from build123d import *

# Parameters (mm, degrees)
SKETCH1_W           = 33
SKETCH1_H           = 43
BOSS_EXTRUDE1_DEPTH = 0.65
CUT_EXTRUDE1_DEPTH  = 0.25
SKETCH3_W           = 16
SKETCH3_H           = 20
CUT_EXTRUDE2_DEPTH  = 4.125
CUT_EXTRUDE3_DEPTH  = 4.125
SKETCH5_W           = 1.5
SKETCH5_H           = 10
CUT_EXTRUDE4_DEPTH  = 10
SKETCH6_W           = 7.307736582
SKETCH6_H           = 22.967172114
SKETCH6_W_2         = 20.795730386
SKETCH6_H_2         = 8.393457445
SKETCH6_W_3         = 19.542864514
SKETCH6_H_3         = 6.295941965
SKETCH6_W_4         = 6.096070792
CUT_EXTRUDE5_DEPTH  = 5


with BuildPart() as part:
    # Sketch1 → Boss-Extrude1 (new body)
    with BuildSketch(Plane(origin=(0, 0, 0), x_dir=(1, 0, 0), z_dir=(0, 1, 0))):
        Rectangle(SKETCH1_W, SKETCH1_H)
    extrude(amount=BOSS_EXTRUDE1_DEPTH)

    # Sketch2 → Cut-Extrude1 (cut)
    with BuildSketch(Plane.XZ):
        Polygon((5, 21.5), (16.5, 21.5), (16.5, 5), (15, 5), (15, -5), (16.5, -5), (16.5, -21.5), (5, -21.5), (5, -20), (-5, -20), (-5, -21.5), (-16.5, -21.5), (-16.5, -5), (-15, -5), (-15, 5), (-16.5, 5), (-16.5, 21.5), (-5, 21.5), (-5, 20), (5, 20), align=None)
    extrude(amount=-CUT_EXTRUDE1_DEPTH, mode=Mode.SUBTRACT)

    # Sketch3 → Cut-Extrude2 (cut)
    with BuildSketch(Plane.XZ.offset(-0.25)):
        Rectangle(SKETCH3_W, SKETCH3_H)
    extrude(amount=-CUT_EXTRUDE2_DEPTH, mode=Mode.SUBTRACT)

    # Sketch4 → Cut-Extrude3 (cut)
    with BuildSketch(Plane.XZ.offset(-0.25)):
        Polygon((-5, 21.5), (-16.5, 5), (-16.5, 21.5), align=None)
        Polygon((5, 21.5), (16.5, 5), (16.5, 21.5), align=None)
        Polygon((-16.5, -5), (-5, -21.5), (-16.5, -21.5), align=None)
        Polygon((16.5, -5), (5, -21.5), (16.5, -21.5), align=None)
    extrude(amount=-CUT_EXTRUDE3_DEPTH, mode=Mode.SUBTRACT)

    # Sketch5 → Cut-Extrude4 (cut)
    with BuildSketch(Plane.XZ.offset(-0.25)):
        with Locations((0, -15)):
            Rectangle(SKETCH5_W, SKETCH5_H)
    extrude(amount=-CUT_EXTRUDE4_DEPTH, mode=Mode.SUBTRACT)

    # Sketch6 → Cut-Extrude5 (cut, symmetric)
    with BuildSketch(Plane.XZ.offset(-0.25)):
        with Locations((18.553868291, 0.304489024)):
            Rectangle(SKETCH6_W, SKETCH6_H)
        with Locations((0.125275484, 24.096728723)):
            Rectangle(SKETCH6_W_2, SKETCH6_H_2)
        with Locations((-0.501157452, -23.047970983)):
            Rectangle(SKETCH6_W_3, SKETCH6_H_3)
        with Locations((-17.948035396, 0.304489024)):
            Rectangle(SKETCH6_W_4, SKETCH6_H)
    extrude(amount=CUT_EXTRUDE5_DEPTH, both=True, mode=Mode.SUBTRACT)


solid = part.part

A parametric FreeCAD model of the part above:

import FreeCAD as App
import Part
import Sketcher
from FreeCAD import Vector

doc = App.newDocument("Part")
body = doc.addObject("PartDesign::Body", "Body")

# Sketch on XZ plane
sketch1 = body.newObject("Sketcher::SketchObject", "Sketch")
sketch1.AttachmentSupport = (doc.getObject("XZ_Plane"), [""])
sketch1.MapMode = "FlatFace"
sketch1.addGeometry(Part.LineSegment(Vector(-16, -22, 0), Vector(-16, 22, 0)), False)
sketch1.addGeometry(Part.LineSegment(Vector(-16, 22, 0), Vector(16, 22, 0)), False)
sketch1.addGeometry(Part.LineSegment(Vector(16, 22, 0), Vector(16, -22, 0)), False)
sketch1.addGeometry(Part.LineSegment(Vector(16, -22, 0), Vector(-16, -22, 0)), False)
sketch1.addConstraint(Sketcher.Constraint("Coincident", 0, 2, 1, 1))
sketch1.addConstraint(Sketcher.Constraint("Coincident", 1, 2, 2, 1))
sketch1.addConstraint(Sketcher.Constraint("Coincident", 2, 2, 3, 1))
sketch1.addConstraint(Sketcher.Constraint("Coincident", 3, 2, 0, 1))
sketch1.addConstraint(Sketcher.Constraint("Vertical", 0))
sketch1.addConstraint(Sketcher.Constraint("Horizontal", 1))
sketch1.addConstraint(Sketcher.Constraint("Vertical", 2))
sketch1.addConstraint(Sketcher.Constraint("Horizontal", 3))
sketch1.addConstraint(Sketcher.Constraint("Symmetric", 0, 2, 2, 2, -1, 1))
sketch1.addConstraint(Sketcher.Constraint("DistanceX", 1, 1, 1, 2, 33.0))
sketch1.addConstraint(Sketcher.Constraint("DistanceY", 0, 1, 0, 2, 43.0))
pad1 = body.newObject("PartDesign::Pad", "Pad")
pad1.Profile = sketch1
pad1.Length = 0.65
pad1.Reversed = True

# Sketch on XZ plane
sketch2 = body.newObject("Sketcher::SketchObject", "Sketch001")
sketch2.AttachmentSupport = (doc.getObject("XZ_Plane"), [""])
sketch2.MapMode = "FlatFace"
sketch2.addGeometry(Part.LineSegment(Vector(16.5, 21.5, 0), Vector(5, 21.5, 0)), False)
sketch2.addGeometry(Part.LineSegment(Vector(5, 21.5, 0), Vector(5, 20, 0)), False)
sketch2.addGeometry(Part.LineSegment(Vector(5, 20, 0), Vector(-5, 20, 0)), False)
sketch2.addGeometry(Part.LineSegment(Vector(-5, 20, 0), Vector(-5, 21.5, 0)), False)
sketch2.addGeometry(Part.LineSegment(Vector(-5, 21.5, 0), Vector(-16.5, 21.5, 0)), False)
sketch2.addGeometry(Part.LineSegment(Vector(-16.5, 21.5, 0), Vector(-16.5, 5, 0)), False)
sketch2.addGeometry(Part.LineSegment(Vector(-16.5, 5, 0), Vector(-15, 5, 0)), False)
sketch2.addGeometry(Part.LineSegment(Vector(-15, 5, 0), Vector(-15, -5, 0)), False)
sketch2.addGeometry(Part.LineSegment(Vector(-15, -5, 0), Vector(-16.5, -5, 0)), False)
sketch2.addGeometry(Part.LineSegment(Vector(-16.5, -5, 0), Vector(-16.5, -21.5, 0)), False)
sketch2.addGeometry(Part.LineSegment(Vector(-16.5, -21.5, 0), Vector(-5, -21.5, 0)), False)
sketch2.addGeometry(Part.LineSegment(Vector(-5, -21.5, 0), Vector(-5, -20, 0)), False)
sketch2.addGeometry(Part.LineSegment(Vector(-5, -20, 0), Vector(5, -20, 0)), False)
sketch2.addGeometry(Part.LineSegment(Vector(5, -20, 0), Vector(5, -21.5, 0)), False)
sketch2.addGeometry(Part.LineSegment(Vector(5, -21.5, 0), Vector(16.5, -21.5, 0)), False)
sketch2.addGeometry(Part.LineSegment(Vector(16.5, -21.5, 0), Vector(16.5, -5, 0)), False)
sketch2.addGeometry(Part.LineSegment(Vector(16.5, -5, 0), Vector(15, -5, 0)), False)
sketch2.addGeometry(Part.LineSegment(Vector(15, -5, 0), Vector(15, 5, 0)), False)
sketch2.addGeometry(Part.LineSegment(Vector(15, 5, 0), Vector(16.5, 5, 0)), False)
sketch2.addGeometry(Part.LineSegment(Vector(16.5, 5, 0), Vector(16.5, 21.5, 0)), False)
sketch2.addConstraint(Sketcher.Constraint("Coincident", 0, 2, 1, 1))
sketch2.addConstraint(Sketcher.Constraint("Coincident", 1, 2, 2, 1))
sketch2.addConstraint(Sketcher.Constraint("Coincident", 2, 2, 3, 1))
sketch2.addConstraint(Sketcher.Constraint("Coincident", 3, 2, 4, 1))
sketch2.addConstraint(Sketcher.Constraint("Coincident", 4, 2, 5, 1))
sketch2.addConstraint(Sketcher.Constraint("Coincident", 5, 2, 6, 1))
sketch2.addConstraint(Sketcher.Constraint("Coincident", 6, 2, 7, 1))
sketch2.addConstraint(Sketcher.Constraint("Coincident", 7, 2, 8, 1))
sketch2.addConstraint(Sketcher.Constraint("Coincident", 8, 2, 9, 1))
sketch2.addConstraint(Sketcher.Constraint("Coincident", 9, 2, 10, 1))
sketch2.addConstraint(Sketcher.Constraint("Coincident", 10, 2, 11, 1))
sketch2.addConstraint(Sketcher.Constraint("Coincident", 11, 2, 12, 1))
sketch2.addConstraint(Sketcher.Constraint("Coincident", 12, 2, 13, 1))
sketch2.addConstraint(Sketcher.Constraint("Coincident", 13, 2, 14, 1))
sketch2.addConstraint(Sketcher.Constraint("Coincident", 14, 2, 15, 1))
sketch2.addConstraint(Sketcher.Constraint("Coincident", 15, 2, 16, 1))
sketch2.addConstraint(Sketcher.Constraint("Coincident", 16, 2, 17, 1))
sketch2.addConstraint(Sketcher.Constraint("Coincident", 17, 2, 18, 1))
sketch2.addConstraint(Sketcher.Constraint("Coincident", 18, 2, 19, 1))
sketch2.addConstraint(Sketcher.Constraint("Coincident", 19, 2, 0, 1))
sketch2.addConstraint(Sketcher.Constraint("Horizontal", 0))
sketch2.addConstraint(Sketcher.Constraint("Vertical", 1))
sketch2.addConstraint(Sketcher.Constraint("Horizontal", 2))
sketch2.addConstraint(Sketcher.Constraint("Vertical", 3))
sketch2.addConstraint(Sketcher.Constraint("Horizontal", 4))
sketch2.addConstraint(Sketcher.Constraint("Vertical", 5))
sketch2.addConstraint(Sketcher.Constraint("Horizontal", 6))
sketch2.addConstraint(Sketcher.Constraint("Vertical", 7))
sketch2.addConstraint(Sketcher.Constraint("Horizontal", 8))
sketch2.addConstraint(Sketcher.Constraint("Vertical", 9))
sketch2.addConstraint(Sketcher.Constraint("Horizontal", 10))
sketch2.addConstraint(Sketcher.Constraint("Vertical", 11))
sketch2.addConstraint(Sketcher.Constraint("Horizontal", 12))
sketch2.addConstraint(Sketcher.Constraint("Vertical", 13))
sketch2.addConstraint(Sketcher.Constraint("Horizontal", 14))
sketch2.addConstraint(Sketcher.Constraint("Vertical", 15))
sketch2.addConstraint(Sketcher.Constraint("Horizontal", 16))
sketch2.addConstraint(Sketcher.Constraint("Vertical", 17))
sketch2.addConstraint(Sketcher.Constraint("Horizontal", 18))
sketch2.addConstraint(Sketcher.Constraint("Vertical", 19))
sketch2.addConstraint(Sketcher.Constraint("Symmetric", 0, 2, 10, 2, -1, 1))
sketch2.addConstraint(Sketcher.Constraint("Symmetric", 2, 2, 12, 2, -1, 1))
sketch2.addConstraint(Sketcher.Constraint("Symmetric", 4, 2, 14, 2, -1, 1))
sketch2.addConstraint(Sketcher.Constraint("Symmetric", 6, 2, 16, 2, -1, 1))
sketch2.addConstraint(Sketcher.Constraint("Symmetric", 8, 2, 18, 2, -1, 1))
sketch2.addConstraint(Sketcher.Constraint("Symmetric", 0, 2, 3, 2, -2))
sketch2.addConstraint(Sketcher.Constraint("Symmetric", 8, 2, 15, 2, -2))
sketch2.addConstraint(Sketcher.Constraint("Equal", 18, 1))
sketch2.addConstraint(Sketcher.Constraint("Equal", 12, 7))
sketch2.addConstraint(Sketcher.Constraint("DistanceX", 2, 2, 2, 1, 10.0))
sketch2.addConstraint(Sketcher.Constraint("DistanceX", 0, 2, 0, 1, 11.5))
sketch2.addConstraint(Sketcher.Constraint("DistanceX", 6, 1, 6, 2, 1.5))
sketch2.addConstraint(Sketcher.Constraint("DistanceY", 5, 2, 5, 1, 16.5))
pocket1 = body.newObject("PartDesign::Pocket", "Pocket")
pocket1.Profile = sketch2
pocket1.Length = 0.25

# Sketch on XZ plane
sketch3 = body.newObject("Sketcher::SketchObject", "Sketch002")
sketch3.AttachmentSupport = (doc.getObject("XZ_Plane"), [""])
sketch3.MapMode = "FlatFace"
sketch3.AttachmentOffset = App.Placement(Vector(0, 0, -0.25), App.Rotation())
sketch3.addGeometry(Part.LineSegment(Vector(-8, 10, 0), Vector(-8, -10, 0)), False)
sketch3.addGeometry(Part.LineSegment(Vector(-8, -10, 0), Vector(8, -10, 0)), False)
sketch3.addGeometry(Part.LineSegment(Vector(8, -10, 0), Vector(8, 10, 0)), False)
sketch3.addGeometry(Part.LineSegment(Vector(8, 10, 0), Vector(-8, 10, 0)), False)
sketch3.addConstraint(Sketcher.Constraint("Coincident", 0, 2, 1, 1))
sketch3.addConstraint(Sketcher.Constraint("Coincident", 1, 2, 2, 1))
sketch3.addConstraint(Sketcher.Constraint("Coincident", 2, 2, 3, 1))
sketch3.addConstraint(Sketcher.Constraint("Coincident", 3, 2, 0, 1))
sketch3.addConstraint(Sketcher.Constraint("Vertical", 0))
sketch3.addConstraint(Sketcher.Constraint("Horizontal", 1))
sketch3.addConstraint(Sketcher.Constraint("Vertical", 2))
sketch3.addConstraint(Sketcher.Constraint("Horizontal", 3))
sketch3.addConstraint(Sketcher.Constraint("Symmetric", 0, 2, 2, 2, -1, 1))
sketch3.addConstraint(Sketcher.Constraint("DistanceX", 1, 1, 1, 2, 16.0))
sketch3.addConstraint(Sketcher.Constraint("DistanceY", 0, 2, 0, 1, 20.0))
pocket2 = body.newObject("PartDesign::Pocket", "Pocket001")
pocket2.Profile = sketch3
pocket2.Length = 4.125

# Sketch on XZ plane
sketch4 = body.newObject("Sketcher::SketchObject", "Sketch003")
sketch4.AttachmentSupport = (doc.getObject("XZ_Plane"), [""])
sketch4.MapMode = "FlatFace"
sketch4.AttachmentOffset = App.Placement(Vector(0, 0, -0.25), App.Rotation())
sketch4.addGeometry(Part.LineSegment(Vector(-16, 5, 0), Vector(-5, 22, 0)), False)
sketch4.addGeometry(Part.LineSegment(Vector(-5, 22, 0), Vector(-16, 22, 0)), False)
sketch4.addGeometry(Part.LineSegment(Vector(-16, 22, 0), Vector(-16, 5, 0)), False)
sketch4.addGeometry(Part.LineSegment(Vector(5, 22, 0), Vector(16, 5, 0)), False)
sketch4.addGeometry(Part.LineSegment(Vector(16, 5, 0), Vector(16, 22, 0)), False)
sketch4.addGeometry(Part.LineSegment(Vector(16, 22, 0), Vector(5, 22, 0)), False)
sketch4.addGeometry(Part.LineSegment(Vector(-5, -22, 0), Vector(-16, -5, 0)), False)
sketch4.addGeometry(Part.LineSegment(Vector(-16, -5, 0), Vector(-16, -22, 0)), False)
sketch4.addGeometry(Part.LineSegment(Vector(-16, -22, 0), Vector(-5, -22, 0)), False)
sketch4.addGeometry(Part.LineSegment(Vector(16, -5, 0), Vector(5, -22, 0)), False)
sketch4.addGeometry(Part.LineSegment(Vector(5, -22, 0), Vector(16, -22, 0)), False)
sketch4.addGeometry(Part.LineSegment(Vector(16, -22, 0), Vector(16, -5, 0)), False)
sketch4.addConstraint(Sketcher.Constraint("Coincident", 0, 2, 1, 1))
sketch4.addConstraint(Sketcher.Constraint("Coincident", 1, 2, 2, 1))
sketch4.addConstraint(Sketcher.Constraint("Coincident", 2, 2, 0, 1))
sketch4.addConstraint(Sketcher.Constraint("Coincident", 3, 2, 4, 1))
sketch4.addConstraint(Sketcher.Constraint("Coincident", 4, 2, 5, 1))
sketch4.addConstraint(Sketcher.Constraint("Coincident", 5, 2, 3, 1))
sketch4.addConstraint(Sketcher.Constraint("Coincident", 6, 2, 7, 1))
sketch4.addConstraint(Sketcher.Constraint("Coincident", 7, 2, 8, 1))
sketch4.addConstraint(Sketcher.Constraint("Coincident", 8, 2, 6, 1))
sketch4.addConstraint(Sketcher.Constraint("Coincident", 9, 2, 10, 1))
sketch4.addConstraint(Sketcher.Constraint("Coincident", 10, 2, 11, 1))
sketch4.addConstraint(Sketcher.Constraint("Coincident", 11, 2, 9, 1))
sketch4.addConstraint(Sketcher.Constraint("Horizontal", 1))
sketch4.addConstraint(Sketcher.Constraint("Vertical", 2))
sketch4.addConstraint(Sketcher.Constraint("Vertical", 4))
sketch4.addConstraint(Sketcher.Constraint("Horizontal", 5))
sketch4.addConstraint(Sketcher.Constraint("Vertical", 7))
sketch4.addConstraint(Sketcher.Constraint("Horizontal", 8))
sketch4.addConstraint(Sketcher.Constraint("Horizontal", 10))
sketch4.addConstraint(Sketcher.Constraint("Vertical", 11))
sketch4.addConstraint(Sketcher.Constraint("Symmetric", 3, 2, 6, 2, -1, 1))
sketch4.addConstraint(Sketcher.Constraint("Symmetric", 5, 2, 8, 2, -1, 1))
sketch4.addConstraint(Sketcher.Constraint("Symmetric", 0, 2, 9, 2, -1, 1))
sketch4.addConstraint(Sketcher.Constraint("Symmetric", 2, 2, 11, 2, -1, 1))
sketch4.addConstraint(Sketcher.Constraint("Symmetric", 2, 2, 3, 2, -2))
sketch4.addConstraint(Sketcher.Constraint("Symmetric", 0, 2, 5, 2, -2))
sketch4.addConstraint(Sketcher.Constraint("DistanceX", 1, 2, 1, 1, 11.5))
sketch4.addConstraint(Sketcher.Constraint("DistanceY", 2, 2, 2, 1, 16.5))
sketch4.addConstraint(Sketcher.Constraint("DistanceX", 0, 2, -1, 1, 5.0))
sketch4.addConstraint(Sketcher.Constraint("DistanceY", -1, 1, 2, 2, 5.0))
pocket3 = body.newObject("PartDesign::Pocket", "Pocket002")
pocket3.Profile = sketch4
pocket3.Length = 4.125

# Sketch on XZ plane
sketch5 = body.newObject("Sketcher::SketchObject", "Sketch004")
sketch5.AttachmentSupport = (doc.getObject("XZ_Plane"), [""])
sketch5.MapMode = "FlatFace"
sketch5.AttachmentOffset = App.Placement(Vector(0, 0, -0.25), App.Rotation())
sketch5.addGeometry(Part.LineSegment(Vector(-0.8, -10, 0), Vector(-0.8, -20, 0)), False)
sketch5.addGeometry(Part.LineSegment(Vector(-0.8, -20, 0), Vector(0.8, -20, 0)), False)
sketch5.addGeometry(Part.LineSegment(Vector(0.8, -20, 0), Vector(0.8, -10, 0)), False)
sketch5.addGeometry(Part.LineSegment(Vector(0.8, -10, 0), Vector(-0.8, -10, 0)), False)
sketch5.addConstraint(Sketcher.Constraint("Coincident", 0, 2, 1, 1))
sketch5.addConstraint(Sketcher.Constraint("Coincident", 1, 2, 2, 1))
sketch5.addConstraint(Sketcher.Constraint("Coincident", 2, 2, 3, 1))
sketch5.addConstraint(Sketcher.Constraint("Coincident", 3, 2, 0, 1))
sketch5.addConstraint(Sketcher.Constraint("Vertical", 0))
sketch5.addConstraint(Sketcher.Constraint("Horizontal", 1))
sketch5.addConstraint(Sketcher.Constraint("Vertical", 2))
sketch5.addConstraint(Sketcher.Constraint("Horizontal", 3))
sketch5.addConstraint(Sketcher.Constraint("DistanceY", 0, 2, 0, 1, 10.0))
sketch5.addConstraint(Sketcher.Constraint("DistanceX", 1, 1, 1, 2, 1.5))
sketch5.addConstraint(Sketcher.Constraint("DistanceY", 0, 2, -1, 1, 20.0))
sketch5.addConstraint(Sketcher.Constraint("DistanceX", 0, 2, -1, 1, 0.75))
pocket4 = body.newObject("PartDesign::Pocket", "Pocket003")
pocket4.Profile = sketch5
pocket4.Length = 10

# Sketch on XZ plane
sketch6 = body.newObject("Sketcher::SketchObject", "Sketch005")
sketch6.AttachmentSupport = (doc.getObject("XZ_Plane"), [""])
sketch6.MapMode = "FlatFace"
sketch6.AttachmentOffset = App.Placement(Vector(0, 0, -0.25), App.Rotation())
sketch6.addGeometry(Part.LineSegment(Vector(15, 12, 0), Vector(15, -11, 0)), False)
sketch6.addGeometry(Part.LineSegment(Vector(15, -11, 0), Vector(22, -11, 0)), False)
sketch6.addGeometry(Part.LineSegment(Vector(22, -11, 0), Vector(22, 12, 0)), False)
sketch6.addGeometry(Part.LineSegment(Vector(22, 12, 0), Vector(15, 12, 0)), False)
sketch6.addGeometry(Part.LineSegment(Vector(-10, 28, 0), Vector(-10, 20, 0)), False)
sketch6.addGeometry(Part.LineSegment(Vector(-10, 20, 0), Vector(11, 20, 0)), False)
sketch6.addGeometry(Part.LineSegment(Vector(11, 20, 0), Vector(11, 28, 0)), False)
sketch6.addGeometry(Part.LineSegment(Vector(11, 28, 0), Vector(-10, 28, 0)), False)
sketch6.addGeometry(Part.LineSegment(Vector(-10, -20, 0), Vector(-10, -26, 0)), False)
sketch6.addGeometry(Part.LineSegment(Vector(-10, -26, 0), Vector(9, -26, 0)), False)
sketch6.addGeometry(Part.LineSegment(Vector(9, -26, 0), Vector(9, -20, 0)), False)
sketch6.addGeometry(Part.LineSegment(Vector(9, -20, 0), Vector(-10, -20, 0)), False)
sketch6.addGeometry(Part.LineSegment(Vector(-21, 12, 0), Vector(-21, -11, 0)), False)
sketch6.addGeometry(Part.LineSegment(Vector(-21, -11, 0), Vector(-15, -11, 0)), False)
sketch6.addGeometry(Part.LineSegment(Vector(-15, -11, 0), Vector(-15, 12, 0)), False)
sketch6.addGeometry(Part.LineSegment(Vector(-15, 12, 0), Vector(-21, 12, 0)), False)
sketch6.addConstraint(Sketcher.Constraint("Coincident", 0, 2, 1, 1))
sketch6.addConstraint(Sketcher.Constraint("Coincident", 1, 2, 2, 1))
sketch6.addConstraint(Sketcher.Constraint("Coincident", 2, 2, 3, 1))
sketch6.addConstraint(Sketcher.Constraint("Coincident", 3, 2, 0, 1))
sketch6.addConstraint(Sketcher.Constraint("Coincident", 4, 2, 5, 1))
sketch6.addConstraint(Sketcher.Constraint("Coincident", 5, 2, 6, 1))
sketch6.addConstraint(Sketcher.Constraint("Coincident", 6, 2, 7, 1))
sketch6.addConstraint(Sketcher.Constraint("Coincident", 7, 2, 4, 1))
sketch6.addConstraint(Sketcher.Constraint("Coincident", 8, 2, 9, 1))
sketch6.addConstraint(Sketcher.Constraint("Coincident", 9, 2, 10, 1))
sketch6.addConstraint(Sketcher.Constraint("Coincident", 10, 2, 11, 1))
sketch6.addConstraint(Sketcher.Constraint("Coincident", 11, 2, 8, 1))
sketch6.addConstraint(Sketcher.Constraint("Coincident", 12, 2, 13, 1))
sketch6.addConstraint(Sketcher.Constraint("Coincident", 13, 2, 14, 1))
sketch6.addConstraint(Sketcher.Constraint("Coincident", 14, 2, 15, 1))
sketch6.addConstraint(Sketcher.Constraint("Coincident", 15, 2, 12, 1))
sketch6.addConstraint(Sketcher.Constraint("Vertical", 0))
sketch6.addConstraint(Sketcher.Constraint("Horizontal", 1))
sketch6.addConstraint(Sketcher.Constraint("Vertical", 2))
sketch6.addConstraint(Sketcher.Constraint("Horizontal", 3))
sketch6.addConstraint(Sketcher.Constraint("Vertical", 4))
sketch6.addConstraint(Sketcher.Constraint("Horizontal", 5))
sketch6.addConstraint(Sketcher.Constraint("Vertical", 6))
sketch6.addConstraint(Sketcher.Constraint("Horizontal", 7))
sketch6.addConstraint(Sketcher.Constraint("Vertical", 8))
sketch6.addConstraint(Sketcher.Constraint("Horizontal", 9))
sketch6.addConstraint(Sketcher.Constraint("Vertical", 10))
sketch6.addConstraint(Sketcher.Constraint("Horizontal", 11))
sketch6.addConstraint(Sketcher.Constraint("Vertical", 12))
sketch6.addConstraint(Sketcher.Constraint("Horizontal", 13))
sketch6.addConstraint(Sketcher.Constraint("Vertical", 14))
sketch6.addConstraint(Sketcher.Constraint("Horizontal", 15))
sketch6.addConstraint(Sketcher.Constraint("Symmetric", 0, 2, 13, 2, -2))
sketch6.addConstraint(Sketcher.Constraint("Symmetric", 4, 2, 11, 2, -1))
sketch6.addConstraint(Sketcher.Constraint("Horizontal", 3, 2, 14, 2))
sketch6.addConstraint(Sketcher.Constraint("DistanceX", -1, 1, 0, 2, 14.9))
sketch6.addConstraint(Sketcher.Constraint("DistanceY", -1, 1, 4, 2, 19.9))
sketch6.addConstraint(Sketcher.Constraint("DistanceX", 5, 1, 5, 2, 20.79573))
sketch6.addConstraint(Sketcher.Constraint("DistanceX", 13, 1, 13, 2, 6.096071))
sketch6.addConstraint(Sketcher.Constraint("DistanceY", 8, 2, 8, 1, 6.295942))
sketch6.addConstraint(Sketcher.Constraint("DistanceX", 1, 1, 1, 2, 7.307737))
sketch6.addConstraint(Sketcher.Constraint("DistanceX", 9, 1, 9, 2, 19.542865))
sketch6.addConstraint(Sketcher.Constraint("DistanceY", 0, 2, 0, 1, 22.967172))
sketch6.addConstraint(Sketcher.Constraint("DistanceY", 4, 2, 4, 1, 8.393457))
sketch6.addConstraint(Sketcher.Constraint("DistanceX", 4, 2, -1, 1, 10.27259))
sketch6.addConstraint(Sketcher.Constraint("DistanceY", 0, 2, -1, 1, 11.179097))
pocket5 = body.newObject("PartDesign::Pocket", "Pocket004")
pocket5.Profile = sketch6
pocket5.Length = 10
pocket5.Midplane = True

doc.recompute()
